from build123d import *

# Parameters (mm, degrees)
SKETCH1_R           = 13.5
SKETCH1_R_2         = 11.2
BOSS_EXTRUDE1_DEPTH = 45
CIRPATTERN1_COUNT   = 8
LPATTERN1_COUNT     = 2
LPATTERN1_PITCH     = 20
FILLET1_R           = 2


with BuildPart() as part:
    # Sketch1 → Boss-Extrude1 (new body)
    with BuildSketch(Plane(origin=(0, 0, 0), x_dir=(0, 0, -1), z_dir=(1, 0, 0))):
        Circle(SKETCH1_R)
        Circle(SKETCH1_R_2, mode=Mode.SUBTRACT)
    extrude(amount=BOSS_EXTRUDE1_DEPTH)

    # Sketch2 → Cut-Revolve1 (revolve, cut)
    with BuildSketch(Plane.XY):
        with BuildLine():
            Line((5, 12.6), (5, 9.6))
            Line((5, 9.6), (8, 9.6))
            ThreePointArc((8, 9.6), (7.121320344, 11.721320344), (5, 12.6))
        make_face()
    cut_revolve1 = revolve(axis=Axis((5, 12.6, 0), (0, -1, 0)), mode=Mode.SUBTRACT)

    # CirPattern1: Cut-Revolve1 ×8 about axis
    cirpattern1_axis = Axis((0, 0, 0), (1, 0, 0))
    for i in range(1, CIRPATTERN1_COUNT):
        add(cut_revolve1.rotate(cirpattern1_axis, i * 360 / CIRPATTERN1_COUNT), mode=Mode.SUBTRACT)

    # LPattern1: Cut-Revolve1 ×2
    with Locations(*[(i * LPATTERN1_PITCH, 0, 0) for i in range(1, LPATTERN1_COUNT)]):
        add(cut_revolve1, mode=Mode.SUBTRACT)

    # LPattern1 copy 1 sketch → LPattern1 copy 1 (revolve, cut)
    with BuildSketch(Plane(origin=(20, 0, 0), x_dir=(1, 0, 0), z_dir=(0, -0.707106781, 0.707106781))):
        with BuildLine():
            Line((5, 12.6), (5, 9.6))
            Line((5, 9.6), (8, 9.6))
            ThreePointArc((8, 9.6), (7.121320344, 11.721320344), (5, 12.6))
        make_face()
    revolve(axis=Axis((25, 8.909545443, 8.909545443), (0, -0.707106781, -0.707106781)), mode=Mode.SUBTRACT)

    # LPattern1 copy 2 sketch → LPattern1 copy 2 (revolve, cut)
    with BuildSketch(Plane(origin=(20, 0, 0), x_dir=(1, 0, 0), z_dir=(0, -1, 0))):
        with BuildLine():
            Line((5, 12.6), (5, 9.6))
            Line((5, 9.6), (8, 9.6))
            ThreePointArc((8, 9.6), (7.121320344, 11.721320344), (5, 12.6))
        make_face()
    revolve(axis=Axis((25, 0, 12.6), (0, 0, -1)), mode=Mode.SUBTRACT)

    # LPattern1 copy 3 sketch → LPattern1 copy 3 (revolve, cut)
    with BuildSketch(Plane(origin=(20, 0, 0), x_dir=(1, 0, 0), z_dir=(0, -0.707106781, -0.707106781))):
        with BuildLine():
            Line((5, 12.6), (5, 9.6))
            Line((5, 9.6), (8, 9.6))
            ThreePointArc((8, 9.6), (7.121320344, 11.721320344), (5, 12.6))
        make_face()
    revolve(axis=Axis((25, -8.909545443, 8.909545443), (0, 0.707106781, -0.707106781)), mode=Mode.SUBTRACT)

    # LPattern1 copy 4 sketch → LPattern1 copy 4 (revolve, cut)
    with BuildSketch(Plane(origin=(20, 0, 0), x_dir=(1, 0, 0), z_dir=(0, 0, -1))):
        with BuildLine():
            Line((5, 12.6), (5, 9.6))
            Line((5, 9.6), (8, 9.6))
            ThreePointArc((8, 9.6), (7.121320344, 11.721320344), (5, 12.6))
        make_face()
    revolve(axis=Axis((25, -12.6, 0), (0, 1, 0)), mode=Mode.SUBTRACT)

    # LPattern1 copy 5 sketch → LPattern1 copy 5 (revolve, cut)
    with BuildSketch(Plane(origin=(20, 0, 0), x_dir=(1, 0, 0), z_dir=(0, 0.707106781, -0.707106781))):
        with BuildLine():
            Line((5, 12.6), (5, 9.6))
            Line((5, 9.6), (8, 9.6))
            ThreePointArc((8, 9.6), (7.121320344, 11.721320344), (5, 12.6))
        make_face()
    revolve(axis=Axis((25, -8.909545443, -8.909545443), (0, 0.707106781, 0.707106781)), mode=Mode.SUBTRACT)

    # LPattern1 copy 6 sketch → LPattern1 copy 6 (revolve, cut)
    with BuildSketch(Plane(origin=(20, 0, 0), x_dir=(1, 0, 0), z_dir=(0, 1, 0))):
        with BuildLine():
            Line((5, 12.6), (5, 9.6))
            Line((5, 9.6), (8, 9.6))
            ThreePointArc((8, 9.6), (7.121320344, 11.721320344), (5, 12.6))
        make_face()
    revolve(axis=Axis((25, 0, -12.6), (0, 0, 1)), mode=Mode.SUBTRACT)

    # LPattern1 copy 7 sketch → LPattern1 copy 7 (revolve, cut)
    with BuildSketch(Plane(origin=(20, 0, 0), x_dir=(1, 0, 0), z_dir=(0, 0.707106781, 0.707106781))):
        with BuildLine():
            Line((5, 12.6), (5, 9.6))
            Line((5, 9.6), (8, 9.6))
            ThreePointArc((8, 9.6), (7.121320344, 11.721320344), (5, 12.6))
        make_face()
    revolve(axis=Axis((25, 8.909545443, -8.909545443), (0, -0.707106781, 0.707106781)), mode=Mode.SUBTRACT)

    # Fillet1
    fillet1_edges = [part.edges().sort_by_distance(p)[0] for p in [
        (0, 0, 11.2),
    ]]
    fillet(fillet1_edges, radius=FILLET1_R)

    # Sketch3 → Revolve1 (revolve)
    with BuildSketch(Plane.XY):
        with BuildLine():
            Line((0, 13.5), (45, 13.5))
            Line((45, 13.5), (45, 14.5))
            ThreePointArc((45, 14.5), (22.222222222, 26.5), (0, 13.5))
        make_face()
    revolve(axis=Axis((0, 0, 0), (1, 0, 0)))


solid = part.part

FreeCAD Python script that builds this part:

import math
import FreeCAD as App
import Part
import Sketcher
from FreeCAD import Vector
Q = App.Units.Quantity


def edges_at(feature, points):
    """Names of the edges that pass closest to the given points."""
    edges = feature.Shape.Edges
    near = lambda p: min(range(len(edges)), key=lambda i: edges[i].distToShape(Part.Vertex(*p))[0])
    return sorted({f"Edge{near(p) + 1}" for p in points})

doc = App.newDocument("Part")
params = doc.addObject("Spreadsheet::Sheet", "Params")
for row, (alias, value) in enumerate([
    ("sketch1_diameter", "27 mm"),
    ("sketch1_diameter2", "22.4 mm"),
    ("pad1_length", "45 mm"),
    ("sketch2_radius", "3 mm"),
    ("groove_angle", "360 deg"),
    ("linearpattern_pitch", "20 mm"),
    ("sketch3_radius", "3 mm"),
    ("groove2_angle", "360 deg"),
    ("sketch4_radius", "3 mm"),
    ("groove3_angle", "360 deg"),
    ("sketch5_radius", "3 mm"),
    ("groove4_angle", "360 deg"),
    ("sketch6_radius", "3 mm"),
    ("groove5_angle", "360 deg"),
    ("sketch7_radius", "3 mm"),
    ("groove6_angle", "360 deg"),
    ("sketch8_radius", "3 mm"),
    ("groove7_angle", "360 deg"),
    ("sketch9_radius", "3 mm"),
    ("groove8_angle", "360 deg"),
    ("fillet_radius", "2 mm"),
    ("sketch10_width", "45 mm"),
    ("sketch10_height", "1 mm"),
    ("revolution_angle", "360 deg"),
], start=1):
    params.set(f"A{row}", alias)
    params.set(f"B{row}", "=" + value)
    params.setAlias(f"B{row}", alias)

body = doc.addObject("PartDesign::Body", "Body")

# Sketch on YZ plane
sketch1 = body.newObject("Sketcher::SketchObject", "Sketch")
sketch1.AttachmentSupport = (doc.getObject("YZ_Plane"), [""])
sketch1.MapMode = "FlatFace"
sketch1.addGeometry([
    Part.Circle(Vector(0, 0, 0), Vector(0, 0, 1), 14),
    Part.Circle(Vector(0, 0, 0), Vector(0, 0, 1), 11),
], False)
sketch1.addConstraint([
    Sketcher.Constraint("Coincident", 0, 3, -1, 1),
    Sketcher.Constraint("Coincident", 1, 3, -1, 1),
    Sketcher.Constraint("Diameter", 0, Q("27 mm")),
    Sketcher.Constraint("Diameter", 1, Q("22.4 mm")),
])
sketch1.setExpression("Constraints[2]", "Params.sketch1_diameter")
sketch1.setExpression("Constraints[3]", "Params.sketch1_diameter2")
pad1 = body.newObject("PartDesign::Pad", "Pad")
pad1.Profile = sketch1
pad1.setExpression("Length", "Params.pad1_length")

# Sketch on XY plane
sketch2 = body.newObject("Sketcher::SketchObject", "Sketch001")
sketch2.AttachmentSupport = (doc.getObject("XY_Plane"), [""])
sketch2.MapMode = "FlatFace"
sketch2.addGeometry([
    Part.LineSegment(Vector(5, 12.6, 0), Vector(5, 9.6, 0)),
    Part.LineSegment(Vector(5, 9.6, 0), Vector(8, 9.6, 0)),
    Part.ArcOfCircle(Part.Circle(Vector(5, 9.6, 0), Vector(0, 0, 1), 3), math.radians(0), math.radians(90)),
], False)
sketch2.addGeometry(Part.LineSegment(Vector(5, 12.6, 0), Vector(5, 9.6, 0)), True)  # axis
sketch2.addConstraint([
    Sketcher.Constraint("Coincident", 0, 2, 1, 1),
    Sketcher.Constraint("Coincident", 1, 2, 2, 1),
    Sketcher.Constraint("Coincident", 2, 2, 0, 1),
    Sketcher.Constraint("Vertical", 0),
    Sketcher.Constraint("Horizontal", 1),
    Sketcher.Constraint("Vertical", 3),
    Sketcher.Constraint("Coincident", 0, 2, 2, 3),
    Sketcher.Constraint("Coincident", 3, 1, 2, 2),
    Sketcher.Constraint("Horizontal", 1, 2, 3, 2),
    Sketcher.Constraint("Radius", 2, Q("3 mm")),
    Sketcher.Constraint("DistanceX", -1, 1, 2, 3, Q("5 mm")),
    Sketcher.Constraint("DistanceY", -1, 1, 2, 3, Q("9.6 mm")),
])
sketch2.setExpression("Constraints[9]", "Params.sketch2_radius")
groove = body.newObject("PartDesign::Groove", "Groove")
groove.Profile = sketch2
groove.ReferenceAxis = (sketch2, ["Axis0"])
groove.setExpression("Angle", "Params.groove_angle")
doc.recompute()

polarpattern = body.newObject("PartDesign::PolarPattern", "PolarPattern")
polarpattern.Originals = [groove]
polarpattern.Axis = (doc.getObject("X_Axis"), [""])
polarpattern.Angle = 360
polarpattern.Occurrences = 8
body.Tip = polarpattern
doc.recompute()

linearpattern = body.newObject("PartDesign::LinearPattern", "LinearPattern")
linearpattern.Originals = [groove]
linearpattern.Direction = (doc.getObject("X_Axis"), [""])
linearpattern.Mode = "offset"
linearpattern.setExpression("Offset", "Params.linearpattern_pitch")
linearpattern.Occurrences = 2
body.Tip = linearpattern

# Sketch on an angled plane
sketch3 = body.newObject("Sketcher::SketchObject", "Sketch002")
sketch3.Placement = App.Placement(Vector(20, 0, 0), App.Rotation(Vector(1, 0, 0), Vector(0, 0.707106781, 0.707106781), Vector(0, -0.707106781, 0.707106781), "ZXY"))
sketch3.addGeometry([
    Part.LineSegment(Vector(5, 12.6, 0), Vector(5, 9.6, 0)),
    Part.LineSegment(Vector(5, 9.6, 0), Vector(8, 9.6, 0)),
    Part.ArcOfCircle(Part.Circle(Vector(5, 9.6, 0), Vector(0, 0, 1), 3), math.radians(0), math.radians(90)),
], False)
sketch3.addGeometry(Part.LineSegment(Vector(5, 12.6, 0), Vector(5, 9.6, 0)), True)  # axis
sketch3.addConstraint([
    Sketcher.Constraint("Coincident", 0, 2, 1, 1),
    Sketcher.Constraint("Coincident", 1, 2, 2, 1),
    Sketcher.Constraint("Coincident", 2, 2, 0, 1),
    Sketcher.Constraint("Vertical", 0),
    Sketcher.Constraint("Horizontal", 1),
    Sketcher.Constraint("Vertical", 3),
    Sketcher.Constraint("Coincident", 0, 2, 2, 3),
    Sketcher.Constraint("Coincident", 3, 1, 2, 2),
    Sketcher.Constraint("Horizontal", 1, 2, 3, 2),
    Sketcher.Constraint("Radius", 2, Q("3 mm")),
    Sketcher.Constraint("DistanceX", -1, 1, 2, 3, Q("5 mm")),
    Sketcher.Constraint("DistanceY", -1, 1, 2, 3, Q("9.6 mm")),
])
sketch3.setExpression("Constraints[9]", "Params.sketch3_radius")
groove2 = body.newObject("PartDesign::Groove", "Groove001")
groove2.Profile = sketch3
groove2.ReferenceAxis = (sketch3, ["Axis0"])
groove2.setExpression("Angle", "Params.groove2_angle")

# Sketch on XZ plane
sketch4 = body.newObject("Sketcher::SketchObject", "Sketch003")
sketch4.AttachmentSupport = (doc.getObject("XZ_Plane"), [""])
sketch4.MapMode = "FlatFace"
sketch4.addGeometry([
    Part.LineSegment(Vector(25, 12.6, 0), Vector(25, 9.6, 0)),
    Part.LineSegment(Vector(25, 9.6, 0), Vector(28, 9.6, 0)),
    Part.ArcOfCircle(Part.Circle(Vector(25, 9.6, 0), Vector(0, 0, 1), 3), math.radians(0), math.radians(90)),
], False)
sketch4.addGeometry(Part.LineSegment(Vector(25, 12.6, 0), Vector(25, 9.6, 0)), True)  # axis
sketch4.addConstraint([
    Sketcher.Constraint("Coincident", 0, 2, 1, 1),
    Sketcher.Constraint("Coincident", 1, 2, 2, 1),
    Sketcher.Constraint("Coincident", 2, 2, 0, 1),
    Sketcher.Constraint("Vertical", 0),
    Sketcher.Constraint("Horizontal", 1),
    Sketcher.Constraint("Vertical", 3),
    Sketcher.Constraint("Coincident", 0, 2, 2, 3),
    Sketcher.Constraint("Coincident", 3, 1, 2, 2),
    Sketcher.Constraint("Horizontal", 1, 2, 3, 2),
    Sketcher.Constraint("Radius", 2, Q("3 mm")),
    Sketcher.Constraint("DistanceX", -1, 1, 2, 3, Q("25 mm")),
    Sketcher.Constraint("DistanceY", -1, 1, 2, 3, Q("9.6 mm")),
])
sketch4.setExpression("Constraints[9]", "Params.sketch4_radius")
groove3 = body.newObject("PartDesign::Groove", "Groove002")
groove3.Profile = sketch4
groove3.ReferenceAxis = (sketch4, ["Axis0"])
groove3.setExpression("Angle", "Params.groove3_angle")

# Sketch on an angled plane
sketch5 = body.newObject("Sketcher::SketchObject", "Sketch004")
sketch5.Placement = App.Placement(Vector(20, 0, 0), App.Rotation(Vector(1, 0, 0), Vector(0, -0.707106781, 0.707106781), Vector(0, -0.707106781, -0.707106781), "ZXY"))
sketch5.addGeometry([
    Part.LineSegment(Vector(5, 12.6, 0), Vector(5, 9.6, 0)),
    Part.LineSegment(Vector(5, 9.6, 0), Vector(8, 9.6, 0)),
    Part.ArcOfCircle(Part.Circle(Vector(5, 9.6, 0), Vector(0, 0, 1), 3), math.radians(0), math.radians(90)),
], False)
sketch5.addGeometry(Part.LineSegment(Vector(5, 12.6, 0), Vector(5, 9.6, 0)), True)  # axis
sketch5.addConstraint([
    Sketcher.Constraint("Coincident", 0, 2, 1, 1),
    Sketcher.Constraint("Coincident", 1, 2, 2, 1),
    Sketcher.Constraint("Coincident", 2, 2, 0, 1),
    Sketcher.Constraint("Vertical", 0),
    Sketcher.Constraint("Horizontal", 1),
    Sketcher.Constraint("Vertical", 3),
    Sketcher.Constraint("Coincident", 0, 2, 2, 3),
    Sketcher.Constraint("Coincident", 3, 1, 2, 2),
    Sketcher.Constraint("Horizontal", 1, 2, 3, 2),
    Sketcher.Constraint("Radius", 2, Q("3 mm")),
    Sketcher.Constraint("DistanceX", -1, 1, 2, 3, Q("5 mm")),
    Sketcher.Constraint("DistanceY", -1, 1, 2, 3, Q("9.6 mm")),
])
sketch5.setExpression("Constraints[9]", "Params.sketch5_radius")
groove4 = body.newObject("PartDesign::Groove", "Groove003")
groove4.Profile = sketch5
groove4.ReferenceAxis = (sketch5, ["Axis0"])
groove4.setExpression("Angle", "Params.groove4_angle")

# Sketch on XY plane
sketch6 = body.newObject("Sketcher::SketchObject", "Sketch005")
sketch6.AttachmentSupport = (doc.getObject("XY_Plane"), [""])
sketch6.MapMode = "FlatFace"
sketch6.addGeometry([
    Part.LineSegment(Vector(25, -12.6, 0), Vector(25, -9.6, 0)),
    Part.LineSegment(Vector(25, -9.6, 0), Vector(28, -9.6, 0)),
    Part.ArcOfCircle(Part.Circle(Vector(25, -9.6, 0), Vector(0, 0, 1), 3), math.radians(-90), math.radians(0)),
], False)
sketch6.addGeometry(Part.LineSegment(Vector(25, -12.6, 0), Vector(25, -9.6, 0)), True)  # axis
sketch6.addConstraint([
    Sketcher.Constraint("Coincident", 0, 2, 1, 1),
    Sketcher.Constraint("Coincident", 1, 2, 2, 2),
    Sketcher.Constraint("Coincident", 2, 1, 0, 1),
    Sketcher.Constraint("Vertical", 0),
    Sketcher.Constraint("Horizontal", 1),
    Sketcher.Constraint("Vertical", 3),
    Sketcher.Constraint("Coincident", 0, 2, 2, 3),
    Sketcher.Constraint("Coincident", 3, 1, 2, 1),
    Sketcher.Constraint("Horizontal", 1, 2, 3, 2),
    Sketcher.Constraint("Radius", 2, Q("3 mm")),
    Sketcher.Constraint("DistanceX", -1, 1, 2, 3, Q("25 mm")),
    Sketcher.Constraint("DistanceY", 2, 3, -1, 1, Q("9.6 mm")),
])
sketch6.setExpression("Constraints[9]", "Params.sketch6_radius")
groove5 = body.newObject("PartDesign::Groove", "Groove004")
groove5.Profile = sketch6
groove5.ReferenceAxis = (sketch6, ["Axis0"])
groove5.setExpression("Angle", "Params.groove5_angle")

# Sketch on an angled plane
sketch7 = body.newObject("Sketcher::SketchObject", "Sketch006")
sketch7.Placement = App.Placement(Vector(20, 0, 0), App.Rotation(Vector(1, 0, 0), Vector(0, -0.707106781, -0.707106781), Vector(0, 0.707106781, -0.707106781), "ZXY"))
sketch7.addGeometry([
    Part.LineSegment(Vector(5, 12.6, 0), Vector(5, 9.6, 0)),
    Part.LineSegment(Vector(5, 9.6, 0), Vector(8, 9.6, 0)),
    Part.ArcOfCircle(Part.Circle(Vector(5, 9.6, 0), Vector(0, 0, 1), 3), math.radians(0), math.radians(90)),
], False)
sketch7.addGeometry(Part.LineSegment(Vector(5, 12.6, 0), Vector(5, 9.6, 0)), True)  # axis
sketch7.addConstraint([
    Sketcher.Constraint("Coincident", 0, 2, 1, 1),
    Sketcher.Constraint("Coincident", 1, 2, 2, 1),
    Sketcher.Constraint("Coincident", 2, 2, 0, 1),
    Sketcher.Constraint("Vertical", 0),
    Sketcher.Constraint("Horizontal", 1),
    Sketcher.Constraint("Vertical", 3),
    Sketcher.Constraint("Coincident", 0, 2, 2, 3),
    Sketcher.Constraint("Coincident", 3, 1, 2, 2),
    Sketcher.Constraint("Horizontal", 1, 2, 3, 2),
    Sketcher.Constraint("Radius", 2, Q("3 mm")),
    Sketcher.Constraint("DistanceX", -1, 1, 2, 3, Q("5 mm")),
    Sketcher.Constraint("DistanceY", -1, 1, 2, 3, Q("9.6 mm")),
])
sketch7.setExpression("Constraints[9]", "Params.sketch7_radius")
groove6 = body.newObject("PartDesign::Groove", "Groove005")
groove6.Profile = sketch7
groove6.ReferenceAxis = (sketch7, ["Axis0"])
groove6.setExpression("Angle", "Params.groove6_angle")

# Sketch on XZ plane
sketch8 = body.newObject("Sketcher::SketchObject", "Sketch007")
sketch8.AttachmentSupport = (doc.getObject("XZ_Plane"), [""])
sketch8.MapMode = "FlatFace"
sketch8.addGeometry([
    Part.LineSegment(Vector(25, -12.6, 0), Vector(25, -9.6, 0)),
    Part.LineSegment(Vector(25, -9.6, 0), Vector(28, -9.6, 0)),
    Part.ArcOfCircle(Part.Circle(Vector(25, -9.6, 0), Vector(0, 0, 1), 3), math.radians(-90), math.radians(0)),
], False)
sketch8.addGeometry(Part.LineSegment(Vector(25, -12.6, 0), Vector(25, -9.6, 0)), True)  # axis
sketch8.addConstraint([
    Sketcher.Constraint("Coincident", 0, 2, 1, 1),
    Sketcher.Constraint("Coincident", 1, 2, 2, 2),
    Sketcher.Constraint("Coincident", 2, 1, 0, 1),
    Sketcher.Constraint("Vertical", 0),
    Sketcher.Constraint("Horizontal", 1),
    Sketcher.Constraint("Vertical", 3),
    Sketcher.Constraint("Coincident", 0, 2, 2, 3),
    Sketcher.Constraint("Coincident", 3, 1, 2, 1),
    Sketcher.Constraint("Horizontal", 1, 2, 3, 2),
    Sketcher.Constraint("Radius", 2, Q("3 mm")),
    Sketcher.Constraint("DistanceX", -1, 1, 2, 3, Q("25 mm")),
    Sketcher.Constraint("DistanceY", 2, 3, -1, 1, Q("9.6 mm")),
])
sketch8.setExpression("Constraints[9]", "Params.sketch8_radius")
groove7 = body.newObject("PartDesign::Groove", "Groove006")
groove7.Profile = sketch8
groove7.ReferenceAxis = (sketch8, ["Axis0"])
groove7.setExpression("Angle", "Params.groove7_angle")

# Sketch on an angled plane
sketch9 = body.newObject("Sketcher::SketchObject", "Sketch008")
sketch9.Placement = App.Placement(Vector(20, 0, 0), App.Rotation(Vector(1, 0, 0), Vector(0, 0.707106781, -0.707106781), Vector(0, 0.707106781, 0.707106781), "ZXY"))
sketch9.addGeometry([
    Part.LineSegment(Vector(5, 12.6, 0), Vector(5, 9.6, 0)),
    Part.LineSegment(Vector(5, 9.6, 0), Vector(8, 9.6, 0)),
    Part.ArcOfCircle(Part.Circle(Vector(5, 9.6, 0), Vector(0, 0, 1), 3), math.radians(0), math.radians(90)),
], False)
sketch9.addGeometry(Part.LineSegment(Vector(5, 12.6, 0), Vector(5, 9.6, 0)), True)  # axis
sketch9.addConstraint([
    Sketcher.Constraint("Coincident", 0, 2, 1, 1),
    Sketcher.Constraint("Coincident", 1, 2, 2, 1),
    Sketcher.Constraint("Coincident", 2, 2, 0, 1),
    Sketcher.Constraint("Vertical", 0),
    Sketcher.Constraint("Horizontal", 1),
    Sketcher.Constraint("Vertical", 3),
    Sketcher.Constraint("Coincident", 0, 2, 2, 3),
    Sketcher.Constraint("Coincident", 3, 1, 2, 2),
    Sketcher.Constraint("Horizontal", 1, 2, 3, 2),
    Sketcher.Constraint("Radius", 2, Q("3 mm")),
    Sketcher.Constraint("DistanceX", -1, 1, 2, 3, Q("5 mm")),
    Sketcher.Constraint("DistanceY", -1, 1, 2, 3, Q("9.6 mm")),
])
sketch9.setExpression("Constraints[9]", "Params.sketch9_radius")
groove8 = body.newObject("PartDesign::Groove", "Groove007")
groove8.Profile = sketch9
groove8.ReferenceAxis = (sketch9, ["Axis0"])
groove8.setExpression("Angle", "Params.groove8_angle")
doc.recompute()

fillet = body.newObject("PartDesign::Fillet", "Fillet")
fillet.Base = (groove8, edges_at(groove8, [(0, 0, 11.2)]))
fillet.setExpression("Radius", "Params.fillet_radius")

# Sketch on XY plane
sketch10 = body.newObject("Sketcher::SketchObject", "Sketch009")
sketch10.AttachmentSupport = (doc.getObject("XY_Plane"), [""])
sketch10.MapMode = "FlatFace"
sketch10.addGeometry([
    Part.LineSegment(Vector(0, 13.5, 0), Vector(45, 13.5, 0)),
    Part.LineSegment(Vector(45, 13.5, 0), Vector(45, 14.5, 0)),
    Part.ArcOfCircle(Part.Circle(Vector(22.8, 0, 0), Vector(0, 0, 1), 26.5), math.radians(33), math.radians(149)),
], False)
sketch10.addConstraint([
    Sketcher.Constraint("Coincident", 0, 2, 1, 1),
    Sketcher.Constraint("Coincident", 1, 2, 2, 1),
    Sketcher.Constraint("Coincident", 2, 2, 0, 1),
    Sketcher.Constraint("Horizontal", 0),
    Sketcher.Constraint("Vertical", 1),
    Sketcher.Constraint("PointOnObject", 2, 3, -1),
    Sketcher.Constraint("PointOnObject", 2, 2, -2),
    Sketcher.Constraint("DistanceX", 0, 1, 0, 2, Q("45 mm")),
    Sketcher.Constraint("DistanceY", 1, 1, 1, 2, Q("1 mm")),
    Sketcher.Constraint("DistanceY", -1, 1, 0, 2, Q("13.5 mm")),
])
sketch10.setExpression("Constraints[7]", "Params.sketch10_width")
sketch10.setExpression("Constraints[8]", "Params.sketch10_height")
revolution = body.newObject("PartDesign::Revolution", "Revolution")
revolution.Profile = sketch10
revolution.ReferenceAxis = (sketch10, ["H_Axis"])
revolution.setExpression("Angle", "Params.revolution_angle")

doc.recompute()
